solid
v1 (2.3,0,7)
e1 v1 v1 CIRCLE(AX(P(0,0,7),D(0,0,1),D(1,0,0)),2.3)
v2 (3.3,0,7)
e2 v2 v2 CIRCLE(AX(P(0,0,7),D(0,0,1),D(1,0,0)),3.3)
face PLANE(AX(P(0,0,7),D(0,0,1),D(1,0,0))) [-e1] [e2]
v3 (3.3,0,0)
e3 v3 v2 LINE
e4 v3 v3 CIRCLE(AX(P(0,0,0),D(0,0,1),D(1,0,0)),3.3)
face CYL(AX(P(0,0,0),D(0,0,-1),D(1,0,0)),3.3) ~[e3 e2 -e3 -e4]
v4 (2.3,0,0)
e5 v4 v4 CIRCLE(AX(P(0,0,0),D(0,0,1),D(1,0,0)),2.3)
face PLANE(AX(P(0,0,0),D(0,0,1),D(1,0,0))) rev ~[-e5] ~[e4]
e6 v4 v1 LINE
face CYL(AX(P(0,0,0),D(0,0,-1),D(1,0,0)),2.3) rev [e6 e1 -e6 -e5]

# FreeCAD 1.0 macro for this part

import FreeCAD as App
import Part
import Sketcher

V = App.Vector
Q = App.Units.Quantity

doc = App.newDocument("Part")
body = doc.addObject("PartDesign::Body", "Body")

sketch1 = body.newObject("Sketcher::SketchObject", "Sketch")
sketch1.AttachmentSupport = (doc.getObject("XY_Plane"), [""])
sketch1.MapMode = "FlatFace"
sketch1.addGeometry(Part.Circle(V(0, 0, 0), V(0, 0, 1), 3.3), False)
sketch1.addGeometry(Part.Circle(V(0, 0, 0), V(0, 0, 1), 2.3), False)
sketch1.addConstraint(Sketcher.Constraint("Coincident", 0, 3, -1, 1))
sketch1.addConstraint(Sketcher.Constraint("Coincident", 1, 3, -1, 1))
sketch1.addConstraint(Sketcher.Constraint("Diameter", 1, Q("4.6 mm")))
sketch1.addConstraint(Sketcher.Constraint("Diameter", 0, Q("6.6 mm")))
pad1 = body.newObject("PartDesign::Pad", "Pad")
pad1.Profile = sketch1
pad1.Length = 7

doc.recompute()
